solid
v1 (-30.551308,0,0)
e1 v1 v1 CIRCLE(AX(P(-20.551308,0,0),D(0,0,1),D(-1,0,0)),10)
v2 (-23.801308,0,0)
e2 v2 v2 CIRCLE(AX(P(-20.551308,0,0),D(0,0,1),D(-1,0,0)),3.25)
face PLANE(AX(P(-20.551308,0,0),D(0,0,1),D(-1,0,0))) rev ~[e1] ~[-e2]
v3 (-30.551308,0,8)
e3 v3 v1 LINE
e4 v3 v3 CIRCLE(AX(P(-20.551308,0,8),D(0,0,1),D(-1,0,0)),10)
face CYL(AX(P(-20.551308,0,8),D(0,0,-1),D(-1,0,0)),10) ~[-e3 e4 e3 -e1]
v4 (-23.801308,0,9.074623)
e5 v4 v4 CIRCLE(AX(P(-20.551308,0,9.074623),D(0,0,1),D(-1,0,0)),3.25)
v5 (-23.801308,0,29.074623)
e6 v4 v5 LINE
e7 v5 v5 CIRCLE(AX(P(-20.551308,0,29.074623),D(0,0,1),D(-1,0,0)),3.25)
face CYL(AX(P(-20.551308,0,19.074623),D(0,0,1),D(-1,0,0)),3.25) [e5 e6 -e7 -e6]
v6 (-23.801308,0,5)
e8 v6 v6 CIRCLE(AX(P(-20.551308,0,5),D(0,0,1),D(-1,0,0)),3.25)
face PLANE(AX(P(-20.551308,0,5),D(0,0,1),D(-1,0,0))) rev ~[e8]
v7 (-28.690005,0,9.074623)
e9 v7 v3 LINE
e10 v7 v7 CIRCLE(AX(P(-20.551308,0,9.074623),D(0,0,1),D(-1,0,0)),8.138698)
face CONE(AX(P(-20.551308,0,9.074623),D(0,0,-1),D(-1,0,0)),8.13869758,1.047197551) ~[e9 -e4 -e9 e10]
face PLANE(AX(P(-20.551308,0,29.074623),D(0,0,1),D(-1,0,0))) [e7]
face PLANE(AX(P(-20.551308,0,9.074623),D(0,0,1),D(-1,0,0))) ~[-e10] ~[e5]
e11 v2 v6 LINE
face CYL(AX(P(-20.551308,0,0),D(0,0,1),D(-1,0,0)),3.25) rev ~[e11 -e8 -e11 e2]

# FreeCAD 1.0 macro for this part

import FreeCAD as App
import Part
import Sketcher
from FreeCAD import Vector
Q = App.Units.Quantity

doc = App.newDocument("Part")
body = doc.addObject("PartDesign::Body", "Body")

sketch1 = doc.addObject("Sketcher::SketchObject", "Sketch")
body.addObject(sketch1)
sketch1.AttachmentSupport = (doc.XZ_Plane, [""])
sketch1.MapMode = "FlatFace"
sketch1.addGeometry([
    Part.LineSegment(Vector(-23.8, 29.1, 0), Vector(-23.8, 9.1, 0)),
    Part.LineSegment(Vector(-23.8, 9.1, 0), Vector(-28.7, 9.1, 0)),
    Part.LineSegment(Vector(-28.7, 9.1, 0), Vector(-30.6, 8, 0)),
    Part.LineSegment(Vector(-30.6, 8, 0), Vector(-30.6, 0, 0)),
    Part.LineSegment(Vector(-30.6, 0, 0), Vector(-23.8, 0, 0)),
    Part.LineSegment(Vector(-23.8, 0, 0), Vector(-23.8, 5, 0)),
    Part.LineSegment(Vector(-23.8, 5, 0), Vector(-20.6, 5, 0)),
    Part.LineSegment(Vector(-20.6, 5, 0), Vector(-20.6, 29.1, 0)),
    Part.LineSegment(Vector(-20.6, 29.1, 0), Vector(-23.8, 29.1, 0)),
], False)
sketch1.addGeometry(Part.LineSegment(Vector(-20.6, 0, 0), Vector(-20.6, 29.1, 0)), True)
sketch1.addConstraint([
    Sketcher.Constraint("Coincident", 0, 2, 1, 1),
    Sketcher.Constraint("Coincident", 1, 2, 2, 1),
    Sketcher.Constraint("Coincident", 2, 2, 3, 1),
    Sketcher.Constraint("Coincident", 3, 2, 4, 1),
    Sketcher.Constraint("Coincident", 4, 2, 5, 1),
    Sketcher.Constraint("Coincident", 5, 2, 6, 1),
    Sketcher.Constraint("Coincident", 6, 2, 7, 1),
    Sketcher.Constraint("Coincident", 7, 2, 8, 1),
    Sketcher.Constraint("Coincident", 8, 2, 0, 1),
    Sketcher.Constraint("Vertical", 0),
    Sketcher.Constraint("Horizontal", 1),
    Sketcher.Constraint("Vertical", 3),
    Sketcher.Constraint("Horizontal", 4),
    Sketcher.Constraint("Vertical", 5),
    Sketcher.Constraint("Horizontal", 6),
    Sketcher.Constraint("Vertical", 7),
    Sketcher.Constraint("Horizontal", 8),
    Sketcher.Constraint("Vertical", 9),
    Sketcher.Constraint("Coincident", 9, 2, 7, 2),
    Sketcher.Constraint("PointOnObject", 3, 2, -1),
    Sketcher.Constraint("PointOnObject", 9, 1, -1),
    Sketcher.Constraint("Vertical", 0, 2, 4, 2),
    Sketcher.Constraint("DistanceY", 0, 2, 0, 1, 20.0),
    Sketcher.Constraint("DistanceY", 3, 2, 3, 1, 8.0),
    Sketcher.Constraint("DistanceY", 5, 1, 5, 2, 5.0),
    Sketcher.Constraint("Angle", 2, Q("-150 deg")),
    Sketcher.Constraint("DistanceX", 2, 2, 6, 2, 10.0),
    Sketcher.Constraint("DistanceX", 4, 1, 4, 2, 6.75),
    Sketcher.Constraint("DistanceX", 1, 2, 1, 1, 4.888698),
    Sketcher.Constraint("DistanceX", 0, 2, -1, 1, 23.801308),
])
revolution = doc.addObject("PartDesign::Revolution", "Revolution")
body.addObject(revolution)
revolution.Profile = sketch1
revolution.ReferenceAxis = (sketch1, ["Axis0"])
revolution.Angle = 360

doc.recompute()
